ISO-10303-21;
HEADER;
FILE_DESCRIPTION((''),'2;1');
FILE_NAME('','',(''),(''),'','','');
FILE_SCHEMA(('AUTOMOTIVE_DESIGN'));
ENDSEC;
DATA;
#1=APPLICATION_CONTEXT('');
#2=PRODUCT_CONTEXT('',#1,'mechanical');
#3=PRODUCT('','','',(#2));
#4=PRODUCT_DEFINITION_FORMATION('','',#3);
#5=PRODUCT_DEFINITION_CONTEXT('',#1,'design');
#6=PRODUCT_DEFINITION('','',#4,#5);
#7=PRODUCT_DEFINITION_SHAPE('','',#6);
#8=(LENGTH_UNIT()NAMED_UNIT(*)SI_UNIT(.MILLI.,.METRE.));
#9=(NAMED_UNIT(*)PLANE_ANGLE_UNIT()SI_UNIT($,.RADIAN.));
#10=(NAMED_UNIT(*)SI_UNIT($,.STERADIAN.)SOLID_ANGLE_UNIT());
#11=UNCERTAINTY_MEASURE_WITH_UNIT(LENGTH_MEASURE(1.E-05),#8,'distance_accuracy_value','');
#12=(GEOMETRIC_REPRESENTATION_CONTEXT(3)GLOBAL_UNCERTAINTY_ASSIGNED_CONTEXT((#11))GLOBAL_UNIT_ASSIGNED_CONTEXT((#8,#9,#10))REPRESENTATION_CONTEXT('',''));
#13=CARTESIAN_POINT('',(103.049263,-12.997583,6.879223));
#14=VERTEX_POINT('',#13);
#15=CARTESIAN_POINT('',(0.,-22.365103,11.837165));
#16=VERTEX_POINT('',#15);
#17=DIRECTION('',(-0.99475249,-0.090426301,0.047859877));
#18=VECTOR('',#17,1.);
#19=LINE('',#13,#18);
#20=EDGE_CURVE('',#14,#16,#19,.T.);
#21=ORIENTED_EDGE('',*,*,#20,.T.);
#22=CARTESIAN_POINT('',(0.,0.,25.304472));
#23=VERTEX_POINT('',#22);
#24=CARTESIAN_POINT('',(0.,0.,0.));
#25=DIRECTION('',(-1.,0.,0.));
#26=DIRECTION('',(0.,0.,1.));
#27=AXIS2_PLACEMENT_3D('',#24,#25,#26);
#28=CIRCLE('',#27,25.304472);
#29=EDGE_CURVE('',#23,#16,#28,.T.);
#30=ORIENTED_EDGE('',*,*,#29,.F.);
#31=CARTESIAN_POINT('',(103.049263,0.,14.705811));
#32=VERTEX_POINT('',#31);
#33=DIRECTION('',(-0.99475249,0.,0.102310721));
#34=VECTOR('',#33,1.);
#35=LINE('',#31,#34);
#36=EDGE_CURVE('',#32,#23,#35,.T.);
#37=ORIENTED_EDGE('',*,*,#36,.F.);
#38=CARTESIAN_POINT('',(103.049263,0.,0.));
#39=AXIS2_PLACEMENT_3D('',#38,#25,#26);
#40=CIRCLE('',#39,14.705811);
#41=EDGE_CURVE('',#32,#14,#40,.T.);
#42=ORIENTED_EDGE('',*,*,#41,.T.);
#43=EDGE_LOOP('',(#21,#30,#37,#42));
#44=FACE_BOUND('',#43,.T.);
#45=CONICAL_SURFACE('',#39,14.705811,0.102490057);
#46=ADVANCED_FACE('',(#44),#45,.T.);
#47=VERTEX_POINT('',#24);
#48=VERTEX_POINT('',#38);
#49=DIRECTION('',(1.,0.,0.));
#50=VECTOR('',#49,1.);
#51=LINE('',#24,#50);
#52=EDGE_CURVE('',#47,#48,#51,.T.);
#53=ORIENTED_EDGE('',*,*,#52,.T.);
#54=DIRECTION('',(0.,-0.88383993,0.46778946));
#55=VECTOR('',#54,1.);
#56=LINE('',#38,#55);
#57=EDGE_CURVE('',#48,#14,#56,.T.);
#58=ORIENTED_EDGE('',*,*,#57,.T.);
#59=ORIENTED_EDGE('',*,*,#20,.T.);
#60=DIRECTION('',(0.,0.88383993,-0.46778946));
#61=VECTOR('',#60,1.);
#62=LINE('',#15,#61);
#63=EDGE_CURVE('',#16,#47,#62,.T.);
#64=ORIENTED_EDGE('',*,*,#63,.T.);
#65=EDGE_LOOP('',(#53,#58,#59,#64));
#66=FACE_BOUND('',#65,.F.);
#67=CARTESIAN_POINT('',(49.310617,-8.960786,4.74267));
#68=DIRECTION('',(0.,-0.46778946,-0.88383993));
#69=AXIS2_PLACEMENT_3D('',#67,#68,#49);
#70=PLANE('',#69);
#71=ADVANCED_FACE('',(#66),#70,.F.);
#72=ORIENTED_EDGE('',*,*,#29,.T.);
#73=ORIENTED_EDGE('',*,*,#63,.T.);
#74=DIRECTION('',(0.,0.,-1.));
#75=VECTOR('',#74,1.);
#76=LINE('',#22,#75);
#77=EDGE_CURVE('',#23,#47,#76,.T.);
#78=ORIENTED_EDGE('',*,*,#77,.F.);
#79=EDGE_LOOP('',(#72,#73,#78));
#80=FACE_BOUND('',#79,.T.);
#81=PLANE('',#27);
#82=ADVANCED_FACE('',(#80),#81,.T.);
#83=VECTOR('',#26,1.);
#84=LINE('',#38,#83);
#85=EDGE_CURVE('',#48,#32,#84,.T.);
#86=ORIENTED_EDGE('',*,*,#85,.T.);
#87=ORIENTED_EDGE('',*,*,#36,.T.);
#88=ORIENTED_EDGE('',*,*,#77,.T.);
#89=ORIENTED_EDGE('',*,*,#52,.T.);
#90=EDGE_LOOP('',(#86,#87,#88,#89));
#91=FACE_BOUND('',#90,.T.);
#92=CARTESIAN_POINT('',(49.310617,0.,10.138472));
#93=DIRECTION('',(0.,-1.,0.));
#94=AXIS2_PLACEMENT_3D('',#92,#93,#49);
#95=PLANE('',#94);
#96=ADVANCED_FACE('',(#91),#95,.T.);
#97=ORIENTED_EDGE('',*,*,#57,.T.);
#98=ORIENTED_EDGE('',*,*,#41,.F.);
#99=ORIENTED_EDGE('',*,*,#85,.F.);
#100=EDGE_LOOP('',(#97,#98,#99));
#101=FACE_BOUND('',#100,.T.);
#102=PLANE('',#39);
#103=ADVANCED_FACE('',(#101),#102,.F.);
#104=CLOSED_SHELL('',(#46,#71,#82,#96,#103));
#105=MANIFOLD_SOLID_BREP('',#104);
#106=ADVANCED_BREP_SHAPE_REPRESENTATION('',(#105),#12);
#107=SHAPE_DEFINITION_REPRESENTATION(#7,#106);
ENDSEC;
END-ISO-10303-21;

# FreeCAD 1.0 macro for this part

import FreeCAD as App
import Part
import Sketcher

V = App.Vector


def add_polygon(sketch, points):
    """Adds a closed chain of lines whose ends are joined by coincident constraints."""
    first, n = sketch.GeometryCount, len(points)
    for a, b in zip(points, points[1:] + points[:1]):
        sketch.addGeometry(Part.LineSegment(App.Vector(*a, 0), App.Vector(*b, 0)), False)
    for i in range(n):
        sketch.addConstraint(Sketcher.Constraint("Coincident", first + i, 2, first + (i + 1) % n, 1))

doc = App.newDocument("Part")
body = doc.addObject("PartDesign::Body", "Body")

# Sketch on XZ plane
sketch1 = doc.addObject("Sketcher::SketchObject", "Sketch")
body.addObject(sketch1)
sketch1.AttachmentSupport = (doc.XZ_Plane, [""])
sketch1.MapMode = "FlatFace"
add_polygon(sketch1, [(0, 25), (0, 0), (103, 0), (103, 15)])  # lines 0-3
sketch1.addConstraint(Sketcher.Constraint("Vertical", 0))
sketch1.addConstraint(Sketcher.Constraint("Horizontal", 1))
sketch1.addConstraint(Sketcher.Constraint("Vertical", 2))
sketch1.addConstraint(Sketcher.Constraint("Coincident", 0, 2, -1, 1))
sketch1.addConstraint(Sketcher.Constraint("DistanceY", 2, 1, 2, 2, 14.705811))
sketch1.addConstraint(Sketcher.Constraint("DistanceX", 1, 1, 1, 2, 103.049263))
sketch1.addConstraint(Sketcher.Constraint("DistanceY", 0, 2, 0, 1, 25.304472))
revolution = doc.addObject("PartDesign::Revolution", "Revolution")
body.addObject(revolution)
revolution.Profile = sketch1
revolution.ReferenceAxis = (sketch1, ["H_Axis"])
revolution.Angle = 297.890901
revolution.Reversed = True

doc.recompute()
